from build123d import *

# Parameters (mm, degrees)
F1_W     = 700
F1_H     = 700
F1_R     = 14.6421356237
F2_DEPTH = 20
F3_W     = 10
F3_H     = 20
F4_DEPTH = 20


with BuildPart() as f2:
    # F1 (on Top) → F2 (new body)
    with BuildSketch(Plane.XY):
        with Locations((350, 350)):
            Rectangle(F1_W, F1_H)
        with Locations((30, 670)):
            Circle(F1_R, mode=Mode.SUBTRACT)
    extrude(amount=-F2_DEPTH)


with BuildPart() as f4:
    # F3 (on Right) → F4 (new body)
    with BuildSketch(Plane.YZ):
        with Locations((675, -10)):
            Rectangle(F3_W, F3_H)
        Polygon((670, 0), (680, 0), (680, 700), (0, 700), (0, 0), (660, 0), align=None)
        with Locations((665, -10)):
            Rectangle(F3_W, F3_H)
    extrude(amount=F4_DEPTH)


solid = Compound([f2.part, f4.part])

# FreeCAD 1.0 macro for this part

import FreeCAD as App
import Part
import Sketcher

V = App.Vector


def add_polygon(sketch, points):
    """Adds a closed chain of lines whose ends are joined by coincident constraints."""
    first, n = sketch.GeometryCount, len(points)
    for a, b in zip(points, points[1:] + points[:1]):
        sketch.addGeometry(Part.LineSegment(App.Vector(*a, 0), App.Vector(*b, 0)), False)
    for i in range(n):
        sketch.addConstraint(Sketcher.Constraint("Coincident", first + i, 2, first + (i + 1) % n, 1))

doc = App.newDocument("Part")
params = doc.addObject("Spreadsheet::Sheet", "Params")
for row, (alias, value) in enumerate([
    ("sketch1_width", "700 mm"),
    ("pad1_length", "20 mm"),
    ("sketch2_width", "680 mm"),
    ("sketch2_width2", "660 mm"),
    ("sketch2_height", "720 mm"),
    ("pad2_length", "20 mm"),
], start=1):
    params.set(f"A{row}", alias)
    params.set(f"B{row}", "=" + value)
    params.setAlias(f"B{row}", alias)

body = doc.addObject("PartDesign::Body", "Body")

sketch1 = body.newObject("Sketcher::SketchObject", "Sketch")
sketch1.AttachmentSupport = (doc.getObject("XY_Plane"), [""])
sketch1.MapMode = "FlatFace"
add_polygon(sketch1, [(0, 700), (0, 0), (700, 0), (700, 700)])
sketch1.addGeometry(Part.Circle(V(30, 670, 0), V(0, 0, 1), 14.642136), False)
sketch1.addConstraint([
    Sketcher.Constraint("Vertical", 0),
    Sketcher.Constraint("Horizontal", 1),
    Sketcher.Constraint("Vertical", 2),
    Sketcher.Constraint("Horizontal", 3),
    Sketcher.Constraint("Coincident", 0, 2, -1, 1),
    Sketcher.Constraint("Equal", 3, 0),
    Sketcher.Constraint("DistanceX", 1, 1, 1, 2, 700.0),
    Sketcher.Constraint("DistanceX", -1, 1, 4, 3, 30.0),
    Sketcher.Constraint("DistanceY", -1, 1, 4, 3, 670.0),
    Sketcher.Constraint("Diameter", 4, 29.284271),
])
sketch1.setExpression("Constraints[10]", "Params.sketch1_width")
pad1 = body.newObject("PartDesign::Pad", "Pad")
pad1.Profile = sketch1
pad1.setExpression("Length", "Params.pad1_length")
pad1.Reversed = True
body2 = doc.addObject("PartDesign::Body", "Body001")

sketch2 = body2.newObject("Sketcher::SketchObject", "Sketch001")
sketch2.AttachmentSupport = (doc.getObject("YZ_Plane001"), [""])
sketch2.MapMode = "FlatFace"
add_polygon(sketch2, [(680, -20), (680, 700), (0, 700), (0, 0), (660, 0), (660, -20)])
sketch2.addConstraint([
    Sketcher.Constraint("Vertical", 0),
    Sketcher.Constraint("Horizontal", 1),
    Sketcher.Constraint("Vertical", 2),
    Sketcher.Constraint("Horizontal", 3),
    Sketcher.Constraint("Vertical", 4),
    Sketcher.Constraint("Horizontal", 5),
    Sketcher.Constraint("Coincident", 2, 2, -1, 1),
    Sketcher.Constraint("Equal", 5, 4),
    Sketcher.Constraint("DistanceX", 1, 2, 1, 1, 680.0),
    Sketcher.Constraint("DistanceX", 3, 1, 3, 2, 660.0),
    Sketcher.Constraint("DistanceY", 0, 1, 0, 2, 720.0),
])
sketch2.setExpression("Constraints[14]", "Params.sketch2_width")
sketch2.setExpression("Constraints[15]", "Params.sketch2_width2")
sketch2.setExpression("Constraints[16]", "Params.sketch2_height")
pad2 = body2.newObject("PartDesign::Pad", "Pad001")
pad2.Profile = sketch2
pad2.setExpression("Length", "Params.pad2_length")

doc.recompute()
